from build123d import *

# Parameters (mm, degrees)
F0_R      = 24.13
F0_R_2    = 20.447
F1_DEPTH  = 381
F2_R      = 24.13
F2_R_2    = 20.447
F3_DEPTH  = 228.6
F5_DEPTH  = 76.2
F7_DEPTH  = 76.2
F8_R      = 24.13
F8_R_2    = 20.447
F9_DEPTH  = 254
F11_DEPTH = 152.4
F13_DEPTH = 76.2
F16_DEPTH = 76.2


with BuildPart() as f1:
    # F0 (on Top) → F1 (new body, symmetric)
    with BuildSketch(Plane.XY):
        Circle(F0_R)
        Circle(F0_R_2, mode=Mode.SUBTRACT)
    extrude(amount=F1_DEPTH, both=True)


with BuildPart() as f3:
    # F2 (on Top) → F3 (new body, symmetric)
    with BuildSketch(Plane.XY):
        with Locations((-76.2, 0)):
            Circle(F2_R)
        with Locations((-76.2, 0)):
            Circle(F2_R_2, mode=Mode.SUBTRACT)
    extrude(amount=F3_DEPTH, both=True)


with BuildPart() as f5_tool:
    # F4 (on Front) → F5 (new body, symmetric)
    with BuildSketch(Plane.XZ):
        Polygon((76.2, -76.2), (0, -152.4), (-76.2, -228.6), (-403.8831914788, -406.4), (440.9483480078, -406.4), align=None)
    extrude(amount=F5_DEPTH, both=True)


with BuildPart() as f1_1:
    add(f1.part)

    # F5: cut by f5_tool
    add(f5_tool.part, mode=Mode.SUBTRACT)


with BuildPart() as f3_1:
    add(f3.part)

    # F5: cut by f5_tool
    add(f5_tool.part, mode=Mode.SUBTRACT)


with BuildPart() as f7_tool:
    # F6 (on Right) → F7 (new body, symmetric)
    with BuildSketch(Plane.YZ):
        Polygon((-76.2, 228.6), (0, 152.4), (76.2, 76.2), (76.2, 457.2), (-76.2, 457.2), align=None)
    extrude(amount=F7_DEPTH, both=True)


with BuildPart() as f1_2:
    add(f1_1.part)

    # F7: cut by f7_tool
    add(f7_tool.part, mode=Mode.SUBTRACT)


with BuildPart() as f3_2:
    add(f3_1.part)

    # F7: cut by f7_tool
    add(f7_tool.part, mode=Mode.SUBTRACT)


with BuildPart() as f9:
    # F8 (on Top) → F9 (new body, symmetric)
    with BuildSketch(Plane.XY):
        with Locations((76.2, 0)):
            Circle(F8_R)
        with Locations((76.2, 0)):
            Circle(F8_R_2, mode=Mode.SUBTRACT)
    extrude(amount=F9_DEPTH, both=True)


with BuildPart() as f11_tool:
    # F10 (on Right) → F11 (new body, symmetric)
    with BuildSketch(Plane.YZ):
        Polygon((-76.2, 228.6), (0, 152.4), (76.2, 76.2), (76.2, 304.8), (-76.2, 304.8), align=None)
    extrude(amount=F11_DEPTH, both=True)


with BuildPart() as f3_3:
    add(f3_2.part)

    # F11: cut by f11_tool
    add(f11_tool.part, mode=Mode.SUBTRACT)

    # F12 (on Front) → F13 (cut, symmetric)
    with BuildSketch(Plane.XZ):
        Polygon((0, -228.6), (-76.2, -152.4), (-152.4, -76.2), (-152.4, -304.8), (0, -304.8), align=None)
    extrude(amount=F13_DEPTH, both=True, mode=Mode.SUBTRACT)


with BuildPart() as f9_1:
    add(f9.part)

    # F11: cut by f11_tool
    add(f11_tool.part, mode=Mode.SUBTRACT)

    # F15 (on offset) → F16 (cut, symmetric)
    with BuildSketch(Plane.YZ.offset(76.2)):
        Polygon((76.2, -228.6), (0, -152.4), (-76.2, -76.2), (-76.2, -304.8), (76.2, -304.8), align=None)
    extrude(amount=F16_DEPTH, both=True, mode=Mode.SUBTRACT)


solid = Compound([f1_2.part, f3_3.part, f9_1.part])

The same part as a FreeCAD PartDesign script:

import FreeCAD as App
import Part
import Sketcher

V = App.Vector
Q = App.Units.Quantity

doc = App.newDocument("Part")
body = doc.addObject("PartDesign::Body", "Body")

sketch1 = doc.addObject("Sketcher::SketchObject", "Sketch")
body.addObject(sketch1)
sketch1.AttachmentSupport = (doc.XY_Plane, [""])
sketch1.MapMode = "FlatFace"
sketch1.addGeometry([
    Part.Circle(V(0, 0, 0), V(0, 0, 1), 24.13),
    Part.Circle(V(0, 0, 0), V(0, 0, 1), 20.447),
], False)
sketch1.addConstraint([
    Sketcher.Constraint("Coincident", 0, 3, -1, 1),
    Sketcher.Constraint("Coincident", 1, 3, -1, 1),
    Sketcher.Constraint("Diameter", 0, Q("1.9 in")),
    Sketcher.Constraint("Diameter", 1, Q("1.61 in")),
])
pad1 = doc.addObject("PartDesign::Pad", "Pad")
body.addObject(pad1)
pad1.Profile = sketch1
pad1.Length = Q("30 in")
pad1.Midplane = True
body2 = doc.addObject("PartDesign::Body", "Body001")

sketch2 = doc.addObject("Sketcher::SketchObject", "Sketch001")
body2.addObject(sketch2)
sketch2.AttachmentSupport = (doc.getObject("XY_Plane001"), [""])
sketch2.MapMode = "FlatFace"
sketch2.addGeometry([
    Part.Circle(V(-76.2, 0, 0), V(0, 0, 1), 24.13),
    Part.Circle(V(-76.2, 0, 0), V(0, 0, 1), 20.447),
], False)
sketch2.addConstraint([
    Sketcher.Constraint("Coincident", 1, 3, 0, 3),
    Sketcher.Constraint("PointOnObject", 0, 3, -1),
    Sketcher.Constraint("Diameter", 0, Q("1.9 in")),
    Sketcher.Constraint("Diameter", 1, Q("1.61 in")),
    Sketcher.Constraint("DistanceX", 0, 3, -1, 1, Q("3 in")),
])
pad2 = doc.addObject("PartDesign::Pad", "Pad001")
body2.addObject(pad2)
pad2.Profile = sketch2
pad2.Length = Q("18 in")
pad2.Midplane = True
body3 = doc.addObject("PartDesign::Body", "Body002")

sketch3 = doc.addObject("Sketcher::SketchObject", "Sketch002")
body3.addObject(sketch3)
sketch3.AttachmentSupport = (doc.getObject("XZ_Plane002"), [""])
sketch3.MapMode = "FlatFace"
sketch3.addGeometry([
    Part.LineSegment(V(76.2, -76.2, 0), V(-76.2, -228.6, 0)),
    Part.LineSegment(V(-76.2, -228.6, 0), V(-403.883191, -406.4, 0)),
    Part.LineSegment(V(-403.883191, -406.4, 0), V(440.948348, -406.4, 0)),
    Part.LineSegment(V(440.948348, -406.4, 0), V(76.2, -76.2, 0)),
], False)
sketch3.addConstraint([
    Sketcher.Constraint("Coincident", 0, 2, 1, 1),
    Sketcher.Constraint("Coincident", 1, 2, 2, 1),
    Sketcher.Constraint("Coincident", 2, 2, 3, 1),
    Sketcher.Constraint("Coincident", 3, 2, 0, 1),
    Sketcher.Constraint("Horizontal", 2),
    Sketcher.Constraint("DistanceX", 0, 2, -1, 1, Q("3 in")),
    Sketcher.Constraint("DistanceY", 0, 2, -1, 1, Q("9 in")),
    Sketcher.Constraint("DistanceY", 1, 2, -1, 1, Q("16 in")),
    Sketcher.Constraint("DistanceX", -1, 1, 3, 2, Q("3 in")),
    Sketcher.Constraint("DistanceY", 3, 2, -1, 1, Q("3 in")),
    Sketcher.Constraint("DistanceX", 2, 1, 2, 2, Q("844.831539 mm")),
    Sketcher.Constraint("Distance", 1, Q("372.812438 mm")),
])
pad3 = doc.addObject("PartDesign::Pad", "Pad002")
body3.addObject(pad3)
pad3.Profile = sketch3
pad3.Length = Q("6 in")
pad3.Midplane = True
doc.recompute()

body4 = doc.addObject("PartDesign::Body", "Body003")
body4.BaseFeature = body3
boolean = doc.addObject("PartDesign::Boolean", "Boolean")
body.addObject(boolean)
boolean.Type = "Cut"
boolean.addObjects([body4])
doc.recompute()

boolean2 = doc.addObject("PartDesign::Boolean", "Boolean001")
body2.addObject(boolean2)
boolean2.Type = "Cut"
boolean2.addObjects([body3])
body5 = doc.addObject("PartDesign::Body", "Body004")

sketch4 = doc.addObject("Sketcher::SketchObject", "Sketch003")
body5.addObject(sketch4)
sketch4.AttachmentSupport = (doc.getObject("YZ_Plane004"), [""])
sketch4.MapMode = "FlatFace"
sketch4.addGeometry([
    Part.LineSegment(V(-76.2, 228.6, 0), V(76.2, 76.2, 0)),
    Part.LineSegment(V(76.2, 76.2, 0), V(76.2, 457.2, 0)),
    Part.LineSegment(V(76.2, 457.2, 0), V(-76.2, 457.2, 0)),
    Part.LineSegment(V(-76.2, 457.2, 0), V(-76.2, 228.6, 0)),
], False)
sketch4.addConstraint([
    Sketcher.Constraint("Coincident", 0, 2, 1, 1),
    Sketcher.Constraint("Coincident", 1, 2, 2, 1),
    Sketcher.Constraint("Coincident", 2, 2, 3, 1),
    Sketcher.Constraint("Coincident", 3, 2, 0, 1),
    Sketcher.Constraint("Vertical", 1),
    Sketcher.Constraint("Horizontal", 2),
    Sketcher.Constraint("Vertical", 3),
    Sketcher.Constraint("DistanceX", 2, 2, 2, 1, Q("6 in")),
    Sketcher.Constraint("DistanceY", 1, 1, 1, 2, Q("15 in")),
    Sketcher.Constraint("DistanceY", 3, 2, 3, 1, Q("9 in")),
    Sketcher.Constraint("DistanceX", -1, 1, 0, 2, Q("3 in")),
    Sketcher.Constraint("DistanceY", -1, 1, 0, 2, Q("3 in")),
])
pad4 = doc.addObject("PartDesign::Pad", "Pad003")
body5.addObject(pad4)
pad4.Profile = sketch4
pad4.Length = Q("6 in")
pad4.Midplane = True
doc.recompute()

body6 = doc.addObject("PartDesign::Body", "Body005")
body6.BaseFeature = body5
boolean3 = doc.addObject("PartDesign::Boolean", "Boolean002")
body.addObject(boolean3)
boolean3.Type = "Cut"
boolean3.addObjects([body6])
doc.recompute()

boolean4 = doc.addObject("PartDesign::Boolean", "Boolean003")
body2.addObject(boolean4)
boolean4.Type = "Cut"
boolean4.addObjects([body5])
body7 = doc.addObject("PartDesign::Body", "Body006")

sketch5 = doc.addObject("Sketcher::SketchObject", "Sketch004")
body7.addObject(sketch5)
sketch5.AttachmentSupport = (doc.getObject("XY_Plane006"), [""])
sketch5.MapMode = "FlatFace"
sketch5.addGeometry([
    Part.Circle(V(76.2, 0, 0), V(0, 0, 1), 24.13),
    Part.Circle(V(76.2, 0, 0), V(0, 0, 1), 20.447),
], False)
sketch5.addConstraint([
    Sketcher.Constraint("Coincident", 1, 3, 0, 3),
    Sketcher.Constraint("PointOnObject", 0, 3, -1),
    Sketcher.Constraint("Diameter", 0, Q("1.9 in")),
    Sketcher.Constraint("Diameter", 1, Q("1.61 in")),
    Sketcher.Constraint("DistanceX", -1, 1, 0, 3, Q("3 in")),
])
pad5 = doc.addObject("PartDesign::Pad", "Pad004")
body7.addObject(pad5)
pad5.Profile = sketch5
pad5.Length = Q("20 in")
pad5.Midplane = True
body8 = doc.addObject("PartDesign::Body", "Body007")

sketch6 = doc.addObject("Sketcher::SketchObject", "Sketch005")
body8.addObject(sketch6)
sketch6.AttachmentSupport = (doc.getObject("YZ_Plane007"), [""])
sketch6.MapMode = "FlatFace"
sketch6.addGeometry([
    Part.LineSegment(V(-76.2, 228.6, 0), V(76.2, 76.2, 0)),
    Part.LineSegment(V(76.2, 76.2, 0), V(76.2, 304.8, 0)),
    Part.LineSegment(V(76.2, 304.8, 0), V(-76.2, 304.8, 0)),
    Part.LineSegment(V(-76.2, 304.8, 0), V(-76.2, 228.6, 0)),
], False)
sketch6.addConstraint([
    Sketcher.Constraint("Coincident", 0, 2, 1, 1),
    Sketcher.Constraint("Coincident", 1, 2, 2, 1),
    Sketcher.Constraint("Coincident", 2, 2, 3, 1),
    Sketcher.Constraint("Coincident", 3, 2, 0, 1),
    Sketcher.Constraint("Vertical", 1),
    Sketcher.Constraint("Horizontal", 2),
    Sketcher.Constraint("Vertical", 3),
    Sketcher.Constraint("DistanceX", 2, 2, 2, 1, Q("6 in")),
    Sketcher.Constraint("DistanceY", 1, 1, 1, 2, Q("9 in")),
    Sketcher.Constraint("DistanceY", 3, 2, 3, 1, Q("3 in")),
    Sketcher.Constraint("DistanceX", -1, 1, 0, 2, Q("3 in")),
    Sketcher.Constraint("DistanceY", -1, 1, 0, 2, Q("3 in")),
])
pad6 = doc.addObject("PartDesign::Pad", "Pad005")
body8.addObject(pad6)
pad6.Profile = sketch6
pad6.Length = Q("12 in")
pad6.Midplane = True
doc.recompute()

body9 = doc.addObject("PartDesign::Body", "Body008")
body9.BaseFeature = body8
boolean5 = doc.addObject("PartDesign::Boolean", "Boolean004")
body2.addObject(boolean5)
boolean5.Type = "Cut"
boolean5.addObjects([body9])
doc.recompute()

sketch7 = doc.addObject("Sketcher::SketchObject", "Sketch006")
body2.addObject(sketch7)
sketch7.AttachmentSupport = (doc.getObject("XZ_Plane001"), [""])
sketch7.MapMode = "FlatFace"
sketch7.addGeometry([
    Part.LineSegment(V(0, -228.6, 0), V(-152.4, -76.2, 0)),
    Part.LineSegment(V(-152.4, -76.2, 0), V(-152.4, -304.8, 0)),
    Part.LineSegment(V(-152.4, -304.8, 0), V(0, -304.8, 0)),
    Part.LineSegment(V(0, -304.8, 0), V(0, -228.6, 0)),
], False)
sketch7.addConstraint([
    Sketcher.Constraint("Coincident", 0, 2, 1, 1),
    Sketcher.Constraint("Coincident", 1, 2, 2, 1),
    Sketcher.Constraint("Coincident", 2, 2, 3, 1),
    Sketcher.Constraint("Coincident", 3, 2, 0, 1),
    Sketcher.Constraint("Vertical", 1),
    Sketcher.Constraint("Horizontal", 2),
    Sketcher.Constraint("Vertical", 3),
    Sketcher.Constraint("PointOnObject", 2, 2, -2),
    Sketcher.Constraint("DistanceX", 2, 1, 2, 2, Q("6 in")),
    Sketcher.Constraint("DistanceY", 1, 2, 1, 1, Q("9 in")),
    Sketcher.Constraint("DistanceY", 3, 1, 3, 2, Q("3 in")),
    Sketcher.Constraint("DistanceY", 0, 2, -1, 1, Q("3 in")),
])
pocket1 = doc.addObject("PartDesign::Pocket", "Pocket")
body2.addObject(pocket1)
pocket1.Profile = sketch7
pocket1.Length = Q("6 in")
pocket1.Midplane = True
doc.recompute()

boolean6 = doc.addObject("PartDesign::Boolean", "Boolean005")
body7.addObject(boolean6)
boolean6.Type = "Cut"
boolean6.addObjects([body8])

sketch8 = doc.addObject("Sketcher::SketchObject", "Sketch007")
body7.addObject(sketch8)
sketch8.AttachmentSupport = (doc.getObject("YZ_Plane006"), [""])
sketch8.MapMode = "FlatFace"
sketch8.AttachmentOffset = App.Placement(V(0, 0, 3 * 25.4), App.Rotation())
sketch8.addGeometry([
    Part.LineSegment(V(76.2, -228.6, 0), V(-76.2, -76.2, 0)),
    Part.LineSegment(V(-76.2, -76.2, 0), V(-76.2, -304.8, 0)),
    Part.LineSegment(V(-76.2, -304.8, 0), V(76.2, -304.8, 0)),
    Part.LineSegment(V(76.2, -304.8, 0), V(76.2, -228.6, 0)),
], False)
sketch8.addConstraint([
    Sketcher.Constraint("Coincident", 0, 2, 1, 1),
    Sketcher.Constraint("Coincident", 1, 2, 2, 1),
    Sketcher.Constraint("Coincident", 2, 2, 3, 1),
    Sketcher.Constraint("Coincident", 3, 2, 0, 1),
    Sketcher.Constraint("Vertical", 1),
    Sketcher.Constraint("Horizontal", 2),
    Sketcher.Constraint("Vertical", 3),
    Sketcher.Constraint("DistanceX", 2, 1, 2, 2, Q("6 in")),
    Sketcher.Constraint("DistanceY", 1, 2, 1, 1, Q("9 in")),
    Sketcher.Constraint("DistanceY", 3, 1, 3, 2, Q("3 in")),
    Sketcher.Constraint("DistanceX", 0, 2, -1, 1, Q("3 in")),
    Sketcher.Constraint("DistanceY", 0, 2, -1, 1, Q("3 in")),
])
pocket2 = doc.addObject("PartDesign::Pocket", "Pocket001")
body7.addObject(pocket2)
pocket2.Profile = sketch8
pocket2.Length = Q("6 in")
pocket2.Midplane = True

doc.recompute()
